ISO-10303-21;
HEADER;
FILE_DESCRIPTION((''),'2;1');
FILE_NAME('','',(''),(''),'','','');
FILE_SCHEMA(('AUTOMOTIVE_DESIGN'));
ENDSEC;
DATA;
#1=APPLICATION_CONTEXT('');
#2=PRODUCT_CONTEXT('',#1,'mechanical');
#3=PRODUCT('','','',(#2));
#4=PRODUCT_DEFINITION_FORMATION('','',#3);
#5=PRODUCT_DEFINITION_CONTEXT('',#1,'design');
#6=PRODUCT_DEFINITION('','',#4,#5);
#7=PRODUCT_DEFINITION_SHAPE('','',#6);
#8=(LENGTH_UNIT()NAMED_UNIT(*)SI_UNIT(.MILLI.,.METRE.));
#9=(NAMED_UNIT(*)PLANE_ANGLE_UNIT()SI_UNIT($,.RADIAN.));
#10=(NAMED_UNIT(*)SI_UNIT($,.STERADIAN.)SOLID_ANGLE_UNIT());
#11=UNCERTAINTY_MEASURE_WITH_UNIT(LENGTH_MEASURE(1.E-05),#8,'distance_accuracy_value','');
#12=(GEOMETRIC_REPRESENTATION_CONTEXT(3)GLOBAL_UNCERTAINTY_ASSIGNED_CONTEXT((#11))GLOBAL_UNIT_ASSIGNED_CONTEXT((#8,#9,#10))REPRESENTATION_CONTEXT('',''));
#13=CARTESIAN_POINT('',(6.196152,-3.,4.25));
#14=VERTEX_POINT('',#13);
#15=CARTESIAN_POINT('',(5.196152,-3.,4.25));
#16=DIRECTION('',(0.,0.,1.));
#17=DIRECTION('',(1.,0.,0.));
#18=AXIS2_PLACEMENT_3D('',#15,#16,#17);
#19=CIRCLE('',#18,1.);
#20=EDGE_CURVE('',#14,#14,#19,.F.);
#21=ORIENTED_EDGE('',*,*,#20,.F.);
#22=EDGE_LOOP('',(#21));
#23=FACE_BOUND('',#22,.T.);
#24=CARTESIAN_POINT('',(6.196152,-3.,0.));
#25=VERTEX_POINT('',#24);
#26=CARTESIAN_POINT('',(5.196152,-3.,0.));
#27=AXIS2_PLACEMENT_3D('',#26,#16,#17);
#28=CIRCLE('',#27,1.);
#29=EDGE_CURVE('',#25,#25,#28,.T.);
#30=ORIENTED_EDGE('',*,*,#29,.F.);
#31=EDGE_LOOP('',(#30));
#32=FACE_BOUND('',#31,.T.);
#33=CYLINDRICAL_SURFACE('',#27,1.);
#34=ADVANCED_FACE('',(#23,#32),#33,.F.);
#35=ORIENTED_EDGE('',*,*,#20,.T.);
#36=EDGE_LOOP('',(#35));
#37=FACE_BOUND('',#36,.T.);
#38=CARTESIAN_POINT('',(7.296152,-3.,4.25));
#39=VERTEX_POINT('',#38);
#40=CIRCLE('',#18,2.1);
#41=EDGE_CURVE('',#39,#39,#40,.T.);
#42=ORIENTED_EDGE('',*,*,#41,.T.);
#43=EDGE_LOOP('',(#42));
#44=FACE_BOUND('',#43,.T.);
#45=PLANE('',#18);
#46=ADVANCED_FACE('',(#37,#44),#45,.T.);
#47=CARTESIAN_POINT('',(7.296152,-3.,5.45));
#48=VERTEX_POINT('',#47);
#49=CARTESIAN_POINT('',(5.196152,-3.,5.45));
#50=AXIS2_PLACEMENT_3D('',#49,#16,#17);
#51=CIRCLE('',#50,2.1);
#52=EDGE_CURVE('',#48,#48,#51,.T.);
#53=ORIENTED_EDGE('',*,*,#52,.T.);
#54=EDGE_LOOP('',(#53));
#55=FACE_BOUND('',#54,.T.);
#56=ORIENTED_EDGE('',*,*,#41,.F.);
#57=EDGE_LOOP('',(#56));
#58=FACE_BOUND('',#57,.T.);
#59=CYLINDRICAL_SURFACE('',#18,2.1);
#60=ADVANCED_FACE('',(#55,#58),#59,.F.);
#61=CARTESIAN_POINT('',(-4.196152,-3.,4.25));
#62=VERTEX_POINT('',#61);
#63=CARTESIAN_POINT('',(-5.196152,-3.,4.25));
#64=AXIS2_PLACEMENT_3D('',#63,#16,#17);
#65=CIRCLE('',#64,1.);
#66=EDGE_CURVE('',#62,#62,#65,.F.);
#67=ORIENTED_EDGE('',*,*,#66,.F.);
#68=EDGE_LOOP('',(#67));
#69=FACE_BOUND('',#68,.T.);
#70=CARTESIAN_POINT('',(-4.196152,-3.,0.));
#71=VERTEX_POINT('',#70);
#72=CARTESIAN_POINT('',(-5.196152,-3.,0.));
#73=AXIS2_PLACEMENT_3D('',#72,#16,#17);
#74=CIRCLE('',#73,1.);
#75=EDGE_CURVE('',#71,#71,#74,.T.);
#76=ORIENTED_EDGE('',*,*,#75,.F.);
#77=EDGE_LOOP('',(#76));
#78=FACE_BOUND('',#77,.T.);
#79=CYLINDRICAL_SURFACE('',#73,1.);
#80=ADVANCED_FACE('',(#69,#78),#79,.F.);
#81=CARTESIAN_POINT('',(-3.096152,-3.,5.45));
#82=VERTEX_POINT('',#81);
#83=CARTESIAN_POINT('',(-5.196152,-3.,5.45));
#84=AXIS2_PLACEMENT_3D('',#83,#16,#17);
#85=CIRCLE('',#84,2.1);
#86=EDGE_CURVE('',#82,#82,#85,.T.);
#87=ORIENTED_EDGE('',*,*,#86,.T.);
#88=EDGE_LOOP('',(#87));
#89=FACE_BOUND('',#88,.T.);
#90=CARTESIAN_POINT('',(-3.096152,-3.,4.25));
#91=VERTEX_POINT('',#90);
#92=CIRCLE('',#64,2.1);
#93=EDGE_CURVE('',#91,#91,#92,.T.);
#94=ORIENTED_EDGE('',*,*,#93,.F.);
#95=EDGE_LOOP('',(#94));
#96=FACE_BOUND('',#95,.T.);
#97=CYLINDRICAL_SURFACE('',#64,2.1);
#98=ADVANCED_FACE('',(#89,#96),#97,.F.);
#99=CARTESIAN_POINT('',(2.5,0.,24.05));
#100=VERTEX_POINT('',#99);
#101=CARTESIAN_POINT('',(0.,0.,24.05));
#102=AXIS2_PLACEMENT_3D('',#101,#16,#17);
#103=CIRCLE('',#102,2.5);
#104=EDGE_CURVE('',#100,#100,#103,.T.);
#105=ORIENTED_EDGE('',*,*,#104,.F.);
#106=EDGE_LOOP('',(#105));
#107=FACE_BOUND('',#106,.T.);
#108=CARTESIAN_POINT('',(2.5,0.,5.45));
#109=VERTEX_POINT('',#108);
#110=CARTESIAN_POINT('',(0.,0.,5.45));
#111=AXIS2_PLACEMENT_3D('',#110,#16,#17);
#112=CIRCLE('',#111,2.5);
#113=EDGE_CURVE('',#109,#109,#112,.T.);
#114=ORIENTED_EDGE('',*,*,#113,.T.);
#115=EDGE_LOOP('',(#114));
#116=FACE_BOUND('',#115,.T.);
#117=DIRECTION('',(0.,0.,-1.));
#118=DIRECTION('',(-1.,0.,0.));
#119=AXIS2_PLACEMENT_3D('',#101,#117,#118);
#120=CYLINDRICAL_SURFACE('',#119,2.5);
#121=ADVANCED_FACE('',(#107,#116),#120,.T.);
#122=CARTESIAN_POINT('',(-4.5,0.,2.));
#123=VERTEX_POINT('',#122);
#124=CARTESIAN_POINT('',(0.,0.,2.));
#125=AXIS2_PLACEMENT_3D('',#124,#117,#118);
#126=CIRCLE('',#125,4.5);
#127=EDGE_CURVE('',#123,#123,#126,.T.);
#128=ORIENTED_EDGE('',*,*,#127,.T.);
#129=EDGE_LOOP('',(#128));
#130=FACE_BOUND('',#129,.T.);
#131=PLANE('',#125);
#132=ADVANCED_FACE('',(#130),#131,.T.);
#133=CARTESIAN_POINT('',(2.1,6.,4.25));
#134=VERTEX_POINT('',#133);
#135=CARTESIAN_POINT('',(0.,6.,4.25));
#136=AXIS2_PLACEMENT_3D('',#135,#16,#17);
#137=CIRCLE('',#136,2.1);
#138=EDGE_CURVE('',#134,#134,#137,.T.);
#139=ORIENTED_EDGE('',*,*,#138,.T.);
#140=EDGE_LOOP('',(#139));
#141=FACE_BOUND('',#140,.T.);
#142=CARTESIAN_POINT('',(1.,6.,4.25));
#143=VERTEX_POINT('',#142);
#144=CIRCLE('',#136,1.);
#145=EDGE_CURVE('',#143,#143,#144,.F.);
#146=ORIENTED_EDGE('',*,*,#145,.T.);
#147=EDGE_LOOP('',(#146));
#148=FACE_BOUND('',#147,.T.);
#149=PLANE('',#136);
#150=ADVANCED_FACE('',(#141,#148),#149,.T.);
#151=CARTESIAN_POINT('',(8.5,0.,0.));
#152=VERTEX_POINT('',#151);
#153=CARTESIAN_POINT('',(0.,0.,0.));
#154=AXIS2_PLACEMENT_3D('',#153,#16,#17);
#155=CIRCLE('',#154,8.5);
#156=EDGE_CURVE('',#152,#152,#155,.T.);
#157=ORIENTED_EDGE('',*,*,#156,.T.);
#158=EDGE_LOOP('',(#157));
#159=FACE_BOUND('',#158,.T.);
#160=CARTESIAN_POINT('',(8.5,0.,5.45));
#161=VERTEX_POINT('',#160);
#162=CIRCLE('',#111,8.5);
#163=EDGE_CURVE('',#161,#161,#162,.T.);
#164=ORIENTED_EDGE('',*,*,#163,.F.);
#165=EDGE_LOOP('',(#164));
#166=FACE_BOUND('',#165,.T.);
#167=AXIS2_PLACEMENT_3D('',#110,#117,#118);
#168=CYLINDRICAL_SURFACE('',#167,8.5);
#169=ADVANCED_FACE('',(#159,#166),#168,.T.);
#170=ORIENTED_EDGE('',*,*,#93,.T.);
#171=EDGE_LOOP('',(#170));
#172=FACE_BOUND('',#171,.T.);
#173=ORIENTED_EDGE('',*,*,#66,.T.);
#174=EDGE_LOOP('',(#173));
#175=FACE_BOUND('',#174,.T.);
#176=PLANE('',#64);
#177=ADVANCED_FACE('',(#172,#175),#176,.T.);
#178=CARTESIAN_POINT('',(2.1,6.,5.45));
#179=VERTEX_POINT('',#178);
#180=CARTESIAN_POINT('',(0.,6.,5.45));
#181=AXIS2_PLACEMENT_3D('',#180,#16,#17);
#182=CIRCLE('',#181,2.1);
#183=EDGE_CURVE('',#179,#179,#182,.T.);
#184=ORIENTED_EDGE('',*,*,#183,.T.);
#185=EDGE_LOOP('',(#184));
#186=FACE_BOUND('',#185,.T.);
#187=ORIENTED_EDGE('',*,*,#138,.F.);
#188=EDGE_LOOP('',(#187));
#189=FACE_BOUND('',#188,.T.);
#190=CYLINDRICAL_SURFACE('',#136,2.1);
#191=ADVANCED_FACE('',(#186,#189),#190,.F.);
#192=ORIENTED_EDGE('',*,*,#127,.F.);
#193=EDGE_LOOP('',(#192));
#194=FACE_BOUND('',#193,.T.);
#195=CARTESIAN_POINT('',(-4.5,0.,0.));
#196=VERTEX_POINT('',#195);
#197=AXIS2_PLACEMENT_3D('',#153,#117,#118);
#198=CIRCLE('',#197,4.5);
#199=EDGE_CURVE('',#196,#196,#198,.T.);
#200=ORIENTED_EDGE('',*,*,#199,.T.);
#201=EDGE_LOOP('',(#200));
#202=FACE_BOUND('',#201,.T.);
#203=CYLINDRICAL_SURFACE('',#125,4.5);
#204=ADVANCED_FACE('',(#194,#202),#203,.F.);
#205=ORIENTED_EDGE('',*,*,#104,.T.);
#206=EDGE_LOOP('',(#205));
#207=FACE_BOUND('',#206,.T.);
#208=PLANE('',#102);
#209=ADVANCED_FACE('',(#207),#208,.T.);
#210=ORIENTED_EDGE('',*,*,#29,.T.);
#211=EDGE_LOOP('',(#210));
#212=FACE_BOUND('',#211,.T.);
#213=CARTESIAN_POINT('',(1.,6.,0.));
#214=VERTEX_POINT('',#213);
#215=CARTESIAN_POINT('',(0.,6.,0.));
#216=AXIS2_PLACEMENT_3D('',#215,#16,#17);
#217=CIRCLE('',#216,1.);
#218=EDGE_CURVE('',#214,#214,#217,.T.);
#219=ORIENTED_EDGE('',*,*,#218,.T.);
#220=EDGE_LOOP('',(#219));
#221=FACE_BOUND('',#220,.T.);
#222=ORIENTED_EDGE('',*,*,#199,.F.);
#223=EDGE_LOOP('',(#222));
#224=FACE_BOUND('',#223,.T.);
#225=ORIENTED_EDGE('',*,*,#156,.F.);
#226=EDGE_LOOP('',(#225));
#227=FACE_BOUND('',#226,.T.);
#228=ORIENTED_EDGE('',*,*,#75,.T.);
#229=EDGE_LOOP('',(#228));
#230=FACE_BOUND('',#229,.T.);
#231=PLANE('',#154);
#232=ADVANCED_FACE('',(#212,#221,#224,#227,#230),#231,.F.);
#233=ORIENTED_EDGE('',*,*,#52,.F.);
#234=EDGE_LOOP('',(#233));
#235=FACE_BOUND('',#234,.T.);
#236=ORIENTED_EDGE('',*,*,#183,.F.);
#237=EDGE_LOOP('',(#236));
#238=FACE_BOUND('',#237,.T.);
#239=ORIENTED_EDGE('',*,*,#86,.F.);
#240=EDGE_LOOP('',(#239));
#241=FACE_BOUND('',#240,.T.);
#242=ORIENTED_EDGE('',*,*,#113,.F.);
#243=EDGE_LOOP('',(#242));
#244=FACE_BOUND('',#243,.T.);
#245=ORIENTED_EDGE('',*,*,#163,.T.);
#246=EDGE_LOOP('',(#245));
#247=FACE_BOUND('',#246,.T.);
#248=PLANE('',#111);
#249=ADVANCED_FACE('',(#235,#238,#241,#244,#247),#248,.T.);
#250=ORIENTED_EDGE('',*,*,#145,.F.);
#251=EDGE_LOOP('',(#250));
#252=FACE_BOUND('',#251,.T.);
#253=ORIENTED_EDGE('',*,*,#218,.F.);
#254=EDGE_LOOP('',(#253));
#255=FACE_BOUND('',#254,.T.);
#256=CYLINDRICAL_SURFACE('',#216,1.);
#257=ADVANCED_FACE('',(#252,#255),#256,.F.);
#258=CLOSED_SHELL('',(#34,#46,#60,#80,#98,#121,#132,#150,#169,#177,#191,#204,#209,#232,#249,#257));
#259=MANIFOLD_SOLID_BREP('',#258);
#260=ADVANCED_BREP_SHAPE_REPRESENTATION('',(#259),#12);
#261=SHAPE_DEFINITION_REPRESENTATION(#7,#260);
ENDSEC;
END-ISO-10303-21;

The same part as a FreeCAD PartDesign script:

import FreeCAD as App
import Part
import Sketcher

V = App.Vector
Q = App.Units.Quantity

doc = App.newDocument("Part")
body = doc.addObject("PartDesign::Body", "Body")

# Sketch on XY plane
sketch1 = body.newObject("Sketcher::SketchObject", "Sketch")
sketch1.AttachmentSupport = (doc.getObject("XY_Plane"), [""])
sketch1.MapMode = "FlatFace"
sketch1.addGeometry(Part.Circle(V(0, 0, 0), V(0, 0, 1), 8.5), False)
sketch1.addConstraint([
    Sketcher.Constraint("Coincident", 0, 3, -1, 1),
    Sketcher.Constraint("Diameter", 0, Q("17 mm")),
])
pad1 = body.newObject("PartDesign::Pad", "Pad")
pad1.Profile = sketch1
pad1.Length = 5.45

# Sketch on XY plane
sketch2 = body.newObject("Sketcher::SketchObject", "Sketch001")
sketch2.AttachmentSupport = (doc.getObject("XY_Plane"), [""])
sketch2.MapMode = "FlatFace"
sketch2.AttachmentOffset = App.Placement(V(0, 0, 5.45), App.Rotation())
sketch2.addGeometry([
    Part.Circle(V(0, 6, 0), V(0, 0, 1), 1),
    Part.Circle(V(5.196152, -3, 0), V(0, 0, 1), 1),
    Part.Circle(V(-5.196152, -3, 0), V(0, 0, 1), 1),
], False)
sketch2.addConstraint([
    Sketcher.Constraint("Equal", 0, 1),
    Sketcher.Constraint("Equal", 1, 2),
    Sketcher.Constraint("Symmetric", 1, 3, 2, 3, -2),
    Sketcher.Constraint("PointOnObject", 0, 3, -2),
    Sketcher.Constraint("Diameter", 0, Q("2 mm")),
    Sketcher.Constraint("DistanceY", -1, 1, 0, 3, Q("6 mm")),
    Sketcher.Constraint("DistanceY", 1, 3, -1, 1, Q("3 mm")),
    Sketcher.Constraint("DistanceX", -1, 1, 1, 3, Q("5.196152 mm")),
])
pocket1 = body.newObject("PartDesign::Pocket", "Pocket")
pocket1.Profile = sketch2
pocket1.Length = 5.45

# Sketch on XY plane
sketch3 = body.newObject("Sketcher::SketchObject", "Sketch002")
sketch3.AttachmentSupport = (doc.getObject("XY_Plane"), [""])
sketch3.MapMode = "FlatFace"
sketch3.AttachmentOffset = App.Placement(V(0, 0, 5.45), App.Rotation())
sketch3.addGeometry(Part.Circle(V(0, 0, 0), V(0, 0, 1), 2.5), False)
sketch3.addConstraint([
    Sketcher.Constraint("Coincident", 0, 3, -1, 1),
    Sketcher.Constraint("Diameter", 0, Q("5 mm")),
])
pad2 = body.newObject("PartDesign::Pad", "Pad001")
pad2.Profile = sketch3
pad2.Length = 18.6

# Sketch on XY plane
sketch4 = body.newObject("Sketcher::SketchObject", "Sketch003")
sketch4.AttachmentSupport = (doc.getObject("XY_Plane"), [""])
sketch4.MapMode = "FlatFace"
sketch4.AttachmentOffset = App.Placement(V(0, 0, 5.45), App.Rotation())
sketch4.addGeometry([
    Part.Circle(V(5.196152, -3, 0), V(0, 0, 1), 2.1),
    Part.Circle(V(0, 6, 0), V(0, 0, 1), 2.1),
    Part.Circle(V(-5.196152, -3, 0), V(0, 0, 1), 2.1),
], False)
sketch4.addConstraint([
    Sketcher.Constraint("Equal", 0, 1),
    Sketcher.Constraint("Equal", 1, 2),
    Sketcher.Constraint("Symmetric", 0, 3, 2, 3, -2),
    Sketcher.Constraint("PointOnObject", 1, 3, -2),
    Sketcher.Constraint("Diameter", 0, Q("4.2 mm")),
    Sketcher.Constraint("DistanceY", 0, 3, -1, 1, Q("3 mm")),
    Sketcher.Constraint("DistanceY", -1, 1, 1, 3, Q("6 mm")),
    Sketcher.Constraint("DistanceX", -1, 1, 0, 3, Q("5.196152 mm")),
])
pocket2 = body.newObject("PartDesign::Pocket", "Pocket001")
pocket2.Profile = sketch4
pocket2.Length = 1.2

# Sketch on XY plane
sketch5 = body.newObject("Sketcher::SketchObject", "Sketch004")
sketch5.AttachmentSupport = (doc.getObject("XY_Plane"), [""])
sketch5.MapMode = "FlatFace"
sketch5.addGeometry(Part.Circle(V(0, 0, 0), V(0, 0, 1), 4.5), False)
sketch5.addConstraint([
    Sketcher.Constraint("Coincident", 0, 3, -1, 1),
    Sketcher.Constraint("Diameter", 0, Q("9 mm")),
])
pocket3 = body.newObject("PartDesign::Pocket", "Pocket002")
pocket3.Profile = sketch5
pocket3.Length = 2
pocket3.Reversed = True

doc.recompute()
